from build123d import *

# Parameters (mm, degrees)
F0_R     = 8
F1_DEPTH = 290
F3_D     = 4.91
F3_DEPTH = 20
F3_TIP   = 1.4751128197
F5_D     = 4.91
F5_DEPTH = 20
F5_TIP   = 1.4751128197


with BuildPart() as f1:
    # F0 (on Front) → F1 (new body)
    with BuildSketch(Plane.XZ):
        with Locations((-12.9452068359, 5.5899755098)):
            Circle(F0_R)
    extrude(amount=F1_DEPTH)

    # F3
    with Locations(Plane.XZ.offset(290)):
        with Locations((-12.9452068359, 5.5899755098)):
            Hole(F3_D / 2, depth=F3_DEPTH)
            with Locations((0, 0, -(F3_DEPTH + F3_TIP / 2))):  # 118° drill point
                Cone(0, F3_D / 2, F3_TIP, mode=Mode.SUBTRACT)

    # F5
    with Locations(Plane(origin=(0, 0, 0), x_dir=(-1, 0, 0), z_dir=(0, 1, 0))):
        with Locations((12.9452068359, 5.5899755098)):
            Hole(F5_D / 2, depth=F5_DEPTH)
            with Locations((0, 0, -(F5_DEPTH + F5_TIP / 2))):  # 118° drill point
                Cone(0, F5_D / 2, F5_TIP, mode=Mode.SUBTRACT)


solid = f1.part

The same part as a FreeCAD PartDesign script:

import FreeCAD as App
import Part
import Sketcher
from FreeCAD import Vector

doc = App.newDocument("Part")
body = doc.addObject("PartDesign::Body", "Body")

# Sketch on XZ plane
sketch1 = body.newObject("Sketcher::SketchObject", "Sketch")
sketch1.AttachmentSupport = (doc.getObject("XZ_Plane"), [""])
sketch1.MapMode = "FlatFace"
sketch1.addGeometry(Part.Circle(Vector(-12.945207, 5.589976, 0), Vector(0, 0, 1), 8), False)
sketch1.addConstraint([
    Sketcher.Constraint("Diameter", 0, 16.0),
    Sketcher.Constraint("DistanceX", 0, 3, -1, 1, 12.945207),
    Sketcher.Constraint("DistanceY", -1, 1, 0, 3, 5.589976),
])
pad1 = body.newObject("PartDesign::Pad", "Pad")
pad1.Profile = sketch1
pad1.Length = 290

# Sketch on XZ plane
sketch2 = body.newObject("Sketcher::SketchObject", "Sketch001")
sketch2.AttachmentSupport = (doc.getObject("XZ_Plane"), [""])
sketch2.MapMode = "FlatFace"
sketch2.AttachmentOffset = App.Placement(Vector(0, 0, 290), App.Rotation())
sketch2.addGeometry(Part.Circle(Vector(-12.945207, 5.589976, 0), Vector(0, 0, 1), 2.455), False)
sketch2.addConstraint([
    Sketcher.Constraint("Diameter", 0, 4.91),
    Sketcher.Constraint("DistanceX", 0, 3, -1, 1, 12.945207),
    Sketcher.Constraint("DistanceY", -1, 1, 0, 3, 5.589976),
])
doc.recompute()
hole = body.newObject("PartDesign::Hole", "Hole")
hole.Profile = sketch2
hole.ThreadType = "None"
hole.Diameter = 4.91
hole.DepthType = "Dimension"
hole.Depth = 20
hole.DrillPoint = "Angled"
hole.DrillPointAngle = 118

# Sketch on XZ plane
sketch3 = body.newObject("Sketcher::SketchObject", "Sketch002")
sketch3.AttachmentSupport = (doc.getObject("XZ_Plane"), [""])
sketch3.MapMode = "FlatFace"
sketch3.addGeometry(Part.Circle(Vector(-12.945207, 5.589976, 0), Vector(0, 0, 1), 2.455), False)
sketch3.addConstraint([
    Sketcher.Constraint("Diameter", 0, 4.91),
    Sketcher.Constraint("DistanceX", 0, 3, -1, 1, 12.945207),
    Sketcher.Constraint("DistanceY", -1, 1, 0, 3, 5.589976),
])
doc.recompute()
hole2 = body.newObject("PartDesign::Hole", "Hole001")
hole2.Profile = sketch3
hole2.ThreadType = "None"
hole2.Diameter = 4.91
hole2.DepthType = "Dimension"
hole2.Depth = 20
hole2.DrillPoint = "Angled"
hole2.DrillPointAngle = 118
hole2.Reversed = True

doc.recompute()
